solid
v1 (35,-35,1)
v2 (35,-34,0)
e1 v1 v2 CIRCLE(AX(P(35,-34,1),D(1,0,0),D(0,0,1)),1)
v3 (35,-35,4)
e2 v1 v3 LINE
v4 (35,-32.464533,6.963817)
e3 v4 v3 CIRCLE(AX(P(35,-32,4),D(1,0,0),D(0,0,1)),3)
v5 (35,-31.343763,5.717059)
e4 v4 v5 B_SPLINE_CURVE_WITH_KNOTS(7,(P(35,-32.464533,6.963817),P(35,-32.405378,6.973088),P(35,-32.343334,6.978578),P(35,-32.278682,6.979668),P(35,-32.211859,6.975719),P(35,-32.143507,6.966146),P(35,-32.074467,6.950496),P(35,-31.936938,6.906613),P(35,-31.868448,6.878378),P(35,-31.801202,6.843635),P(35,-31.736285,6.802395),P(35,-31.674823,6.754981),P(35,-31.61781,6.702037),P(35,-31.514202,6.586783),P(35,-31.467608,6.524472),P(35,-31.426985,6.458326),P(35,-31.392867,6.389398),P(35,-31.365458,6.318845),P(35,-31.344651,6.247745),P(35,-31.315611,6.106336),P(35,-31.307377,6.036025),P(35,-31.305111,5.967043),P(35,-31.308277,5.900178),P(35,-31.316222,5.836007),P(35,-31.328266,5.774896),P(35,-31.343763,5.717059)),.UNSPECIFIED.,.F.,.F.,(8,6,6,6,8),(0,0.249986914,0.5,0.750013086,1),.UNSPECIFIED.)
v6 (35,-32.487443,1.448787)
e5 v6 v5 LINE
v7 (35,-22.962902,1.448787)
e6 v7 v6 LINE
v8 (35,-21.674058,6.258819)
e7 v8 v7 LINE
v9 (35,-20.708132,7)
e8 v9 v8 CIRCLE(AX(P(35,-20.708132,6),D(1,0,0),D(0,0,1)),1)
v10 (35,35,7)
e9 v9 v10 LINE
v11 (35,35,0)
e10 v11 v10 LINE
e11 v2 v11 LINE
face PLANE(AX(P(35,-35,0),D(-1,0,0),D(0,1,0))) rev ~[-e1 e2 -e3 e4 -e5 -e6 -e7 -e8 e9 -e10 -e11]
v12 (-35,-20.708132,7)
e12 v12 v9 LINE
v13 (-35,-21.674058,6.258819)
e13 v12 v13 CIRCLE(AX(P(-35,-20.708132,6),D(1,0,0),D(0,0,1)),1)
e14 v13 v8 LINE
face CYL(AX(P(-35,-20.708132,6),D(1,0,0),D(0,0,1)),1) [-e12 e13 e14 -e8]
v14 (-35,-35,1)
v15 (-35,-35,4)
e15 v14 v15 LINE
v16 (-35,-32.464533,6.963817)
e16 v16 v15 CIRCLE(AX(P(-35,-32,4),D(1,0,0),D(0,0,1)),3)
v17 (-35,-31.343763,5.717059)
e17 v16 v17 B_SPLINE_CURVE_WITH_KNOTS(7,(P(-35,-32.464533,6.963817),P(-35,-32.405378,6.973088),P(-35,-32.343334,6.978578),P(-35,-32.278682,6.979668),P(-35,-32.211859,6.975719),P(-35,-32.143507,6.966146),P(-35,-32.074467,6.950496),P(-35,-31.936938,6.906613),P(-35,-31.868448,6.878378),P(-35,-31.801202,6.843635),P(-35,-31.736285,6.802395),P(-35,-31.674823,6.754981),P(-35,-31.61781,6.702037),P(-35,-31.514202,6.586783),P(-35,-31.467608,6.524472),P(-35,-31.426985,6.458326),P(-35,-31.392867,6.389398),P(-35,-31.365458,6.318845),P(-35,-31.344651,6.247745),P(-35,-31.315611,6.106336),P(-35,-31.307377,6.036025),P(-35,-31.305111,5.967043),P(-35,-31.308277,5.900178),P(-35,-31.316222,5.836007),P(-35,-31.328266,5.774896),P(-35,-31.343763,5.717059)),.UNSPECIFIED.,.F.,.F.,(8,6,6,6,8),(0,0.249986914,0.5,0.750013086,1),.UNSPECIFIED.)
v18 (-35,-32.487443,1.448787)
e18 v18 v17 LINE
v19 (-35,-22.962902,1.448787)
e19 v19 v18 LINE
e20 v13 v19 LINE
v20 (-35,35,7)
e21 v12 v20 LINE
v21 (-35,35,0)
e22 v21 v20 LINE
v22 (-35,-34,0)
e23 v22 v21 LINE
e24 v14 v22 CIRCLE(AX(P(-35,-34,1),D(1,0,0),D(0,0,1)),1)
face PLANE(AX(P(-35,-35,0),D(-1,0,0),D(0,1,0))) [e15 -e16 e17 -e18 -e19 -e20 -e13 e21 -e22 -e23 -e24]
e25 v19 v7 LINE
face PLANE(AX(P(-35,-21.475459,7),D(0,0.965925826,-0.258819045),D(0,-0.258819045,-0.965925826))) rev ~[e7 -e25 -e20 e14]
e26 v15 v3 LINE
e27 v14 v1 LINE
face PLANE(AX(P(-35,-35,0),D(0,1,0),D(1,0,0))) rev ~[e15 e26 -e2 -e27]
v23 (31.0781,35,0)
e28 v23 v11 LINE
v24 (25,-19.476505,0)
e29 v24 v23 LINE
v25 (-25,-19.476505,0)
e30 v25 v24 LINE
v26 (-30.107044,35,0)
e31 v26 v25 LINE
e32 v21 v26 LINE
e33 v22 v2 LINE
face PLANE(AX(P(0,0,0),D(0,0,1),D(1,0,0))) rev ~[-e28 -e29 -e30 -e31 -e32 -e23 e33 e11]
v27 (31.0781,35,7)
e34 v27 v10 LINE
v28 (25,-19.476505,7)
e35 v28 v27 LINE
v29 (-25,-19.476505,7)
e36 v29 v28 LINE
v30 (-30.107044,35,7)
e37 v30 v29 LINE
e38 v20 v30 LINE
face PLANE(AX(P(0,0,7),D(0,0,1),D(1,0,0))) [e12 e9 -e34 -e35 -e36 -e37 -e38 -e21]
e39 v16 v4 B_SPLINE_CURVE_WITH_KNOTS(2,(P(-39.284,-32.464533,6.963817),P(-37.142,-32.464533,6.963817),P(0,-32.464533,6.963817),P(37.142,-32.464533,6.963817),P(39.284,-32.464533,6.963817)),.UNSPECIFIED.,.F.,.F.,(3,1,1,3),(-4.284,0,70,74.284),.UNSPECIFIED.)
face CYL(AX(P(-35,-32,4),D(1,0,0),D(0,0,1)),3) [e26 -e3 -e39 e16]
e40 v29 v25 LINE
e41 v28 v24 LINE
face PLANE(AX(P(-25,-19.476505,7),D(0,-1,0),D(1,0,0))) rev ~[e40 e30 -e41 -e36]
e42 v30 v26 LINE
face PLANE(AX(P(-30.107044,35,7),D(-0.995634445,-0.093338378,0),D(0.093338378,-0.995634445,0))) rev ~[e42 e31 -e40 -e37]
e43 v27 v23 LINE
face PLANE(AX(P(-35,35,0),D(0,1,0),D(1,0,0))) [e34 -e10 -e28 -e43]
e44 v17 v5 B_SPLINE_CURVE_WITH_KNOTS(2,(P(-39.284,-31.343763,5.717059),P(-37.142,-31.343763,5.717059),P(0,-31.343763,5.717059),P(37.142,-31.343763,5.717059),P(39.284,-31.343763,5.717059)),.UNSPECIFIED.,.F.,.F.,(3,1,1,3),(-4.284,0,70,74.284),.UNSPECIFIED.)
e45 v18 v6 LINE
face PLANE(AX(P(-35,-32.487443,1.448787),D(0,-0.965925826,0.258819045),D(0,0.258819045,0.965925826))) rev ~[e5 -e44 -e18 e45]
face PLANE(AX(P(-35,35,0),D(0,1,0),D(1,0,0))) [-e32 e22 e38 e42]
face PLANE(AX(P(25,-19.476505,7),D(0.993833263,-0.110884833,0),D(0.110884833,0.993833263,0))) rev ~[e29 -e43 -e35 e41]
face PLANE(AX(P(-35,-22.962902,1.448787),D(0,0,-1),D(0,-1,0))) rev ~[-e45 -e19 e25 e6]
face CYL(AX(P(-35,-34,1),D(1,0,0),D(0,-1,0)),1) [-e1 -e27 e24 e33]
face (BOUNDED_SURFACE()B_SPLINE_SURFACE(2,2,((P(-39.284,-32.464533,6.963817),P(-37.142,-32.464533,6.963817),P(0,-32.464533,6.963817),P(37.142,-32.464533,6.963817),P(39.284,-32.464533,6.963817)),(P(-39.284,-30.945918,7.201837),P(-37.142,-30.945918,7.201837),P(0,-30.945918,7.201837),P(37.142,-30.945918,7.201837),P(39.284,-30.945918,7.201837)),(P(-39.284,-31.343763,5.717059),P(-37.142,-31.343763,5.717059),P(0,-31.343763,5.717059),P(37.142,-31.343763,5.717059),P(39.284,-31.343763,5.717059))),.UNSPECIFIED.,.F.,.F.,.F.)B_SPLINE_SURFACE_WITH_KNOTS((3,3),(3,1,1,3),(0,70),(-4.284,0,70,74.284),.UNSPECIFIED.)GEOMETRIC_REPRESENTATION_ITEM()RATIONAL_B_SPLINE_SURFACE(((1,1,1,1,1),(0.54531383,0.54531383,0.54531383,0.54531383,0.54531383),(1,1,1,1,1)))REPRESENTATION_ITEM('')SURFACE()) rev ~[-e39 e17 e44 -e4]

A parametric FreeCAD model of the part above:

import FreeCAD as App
import Part
import Sketcher
Q = App.Units.Quantity


def edges_at(feature, points):
    """Names of the edges that pass closest to the given points."""
    edges = feature.Shape.Edges
    near = lambda p: min(range(len(edges)), key=lambda i: edges[i].distToShape(Part.Vertex(*p))[0])
    return sorted({f"Edge{near(p) + 1}" for p in points})

doc = App.newDocument("Part")
body = doc.addObject("PartDesign::Body", "Body")

sketch1 = body.newObject("Sketcher::SketchObject", "Sketch")
sketch1.AttachmentSupport = (doc.getObject("XY_Plane"), [""])
sketch1.MapMode = "FlatFace"
sketch1.addGeometry(Part.LineSegment(App.Vector(-35, 35, 0), App.Vector(-35, -35, 0)), False)
sketch1.addGeometry(Part.LineSegment(App.Vector(-35, -35, 0), App.Vector(35, -35, 0)), False)
sketch1.addGeometry(Part.LineSegment(App.Vector(35, -35, 0), App.Vector(35, 35, 0)), False)
sketch1.addGeometry(Part.LineSegment(App.Vector(35, 35, 0), App.Vector(-35, 35, 0)), False)
sketch1.addConstraint(Sketcher.Constraint("Coincident", 0, 2, 1, 1))
sketch1.addConstraint(Sketcher.Constraint("Coincident", 1, 2, 2, 1))
sketch1.addConstraint(Sketcher.Constraint("Coincident", 2, 2, 3, 1))
sketch1.addConstraint(Sketcher.Constraint("Coincident", 3, 2, 0, 1))
sketch1.addConstraint(Sketcher.Constraint("Vertical", 0))
sketch1.addConstraint(Sketcher.Constraint("Horizontal", 1))
sketch1.addConstraint(Sketcher.Constraint("Vertical", 2))
sketch1.addConstraint(Sketcher.Constraint("Horizontal", 3))
sketch1.addConstraint(Sketcher.Constraint("Symmetric", 0, 2, 2, 2, -1, 1))
sketch1.addConstraint(Sketcher.Constraint("Equal", 3, 0))
sketch1.addConstraint(Sketcher.Constraint("DistanceX", 1, 1, 1, 2, Q("70 mm")))
pad1 = body.newObject("PartDesign::Pad", "Pad")
pad1.Profile = sketch1
pad1.Length = 7

sketch2 = body.newObject("Sketcher::SketchObject", "Sketch001")
sketch2.AttachmentSupport = (doc.getObject("YZ_Plane"), [""])
sketch2.MapMode = "FlatFace"
sketch2.AttachmentOffset = App.Placement(App.Vector(0, 0, -35), App.Rotation())
sketch2.addGeometry(Part.LineSegment(App.Vector(-31, 7, 0), App.Vector(-21.475459, 7, 0)), False)
sketch2.addGeometry(Part.LineSegment(App.Vector(-21.475459, 7, 0), App.Vector(-22.962902, 1.448787, 0)), False)
sketch2.addGeometry(Part.LineSegment(App.Vector(-22.962902, 1.448787, 0), App.Vector(-32.487443, 1.448787, 0)), False)
sketch2.addGeometry(Part.LineSegment(App.Vector(-32.487443, 1.448787, 0), App.Vector(-31, 7, 0)), False)
sketch2.addConstraint(Sketcher.Constraint("Coincident", 0, 2, 1, 1))
sketch2.addConstraint(Sketcher.Constraint("Coincident", 1, 2, 2, 1))
sketch2.addConstraint(Sketcher.Constraint("Coincident", 2, 2, 3, 1))
sketch2.addConstraint(Sketcher.Constraint("Coincident", 3, 2, 0, 1))
sketch2.addConstraint(Sketcher.Constraint("Horizontal", 0))
sketch2.addConstraint(Sketcher.Constraint("Horizontal", 2))
sketch2.addConstraint(Sketcher.Constraint("Parallel", 1, 3))
sketch2.addConstraint(Sketcher.Constraint("Angle", 1, Q("-105 deg")))
sketch2.addConstraint(Sketcher.Constraint("DistanceY", -1, 1, 0, 2, Q("7 mm")))
sketch2.addConstraint(Sketcher.Constraint("DistanceX", 3, 2, -1, 1, Q("31 mm")))
sketch2.addConstraint(Sketcher.Constraint("DistanceX", 0, 1, 0, 2, Q("9.524541 mm")))
sketch2.addConstraint(Sketcher.Constraint("Distance", 1, Q("5.747039 mm")))
pocket1 = body.newObject("PartDesign::Pocket", "Pocket")
pocket1.Profile = sketch2
pocket1.Type = "ThroughAll"
pocket1.Reversed = True
doc.recompute()

fillet = body.newObject("PartDesign::Fillet", "Fillet")
fillet.Base = (pocket1, edges_at(pocket1, [(0, -35, 7)]))
fillet.Radius = 3
doc.recompute()

fillet2 = body.newObject("PartDesign::Fillet", "Fillet001")
fillet2.Base = (fillet, edges_at(fillet, [(0, -35, 0)]))
fillet2.Radius = 1
doc.recompute()

fillet3 = body.newObject("PartDesign::Fillet", "Fillet002")
fillet3.Base = (fillet2, edges_at(fillet2, [(0, -21.475, 7), (0, -31, 7)]))
fillet3.Radius = 1

sketch3 = body.newObject("Sketcher::SketchObject", "Sketch002")
sketch3.AttachmentSupport = (doc.getObject("XY_Plane"), [""])
sketch3.MapMode = "FlatFace"
sketch3.AttachmentOffset = App.Placement(App.Vector(0, 0, 7), App.Rotation())
sketch3.addGeometry(Part.LineSegment(App.Vector(-25, -19.476505, 0), App.Vector(25, -19.476505, 0)), False)
sketch3.addGeometry(Part.LineSegment(App.Vector(25, -19.476505, 0), App.Vector(31.0781, 35, 0)), False)
sketch3.addGeometry(Part.LineSegment(App.Vector(31.0781, 35, 0), App.Vector(-30.107044, 35, 0)), False)
sketch3.addGeometry(Part.LineSegment(App.Vector(-30.107044, 35, 0), App.Vector(-25, -19.476505, 0)), False)
sketch3.addConstraint(Sketcher.Constraint("Coincident", 0, 2, 1, 1))
sketch3.addConstraint(Sketcher.Constraint("Coincident", 1, 2, 2, 1))
sketch3.addConstraint(Sketcher.Constraint("Coincident", 2, 2, 3, 1))
sketch3.addConstraint(Sketcher.Constraint("Coincident", 3, 2, 0, 1))
sketch3.addConstraint(Sketcher.Constraint("Horizontal", 0))
sketch3.addConstraint(Sketcher.Constraint("Horizontal", 2))
sketch3.addConstraint(Sketcher.Constraint("DistanceX", 0, 1, 0, 2, Q("50 mm")))
sketch3.addConstraint(Sketcher.Constraint("DistanceX", -1, 1, 0, 2, Q("25 mm")))
sketch3.addConstraint(Sketcher.Constraint("DistanceY", -1, 1, 1, 2, Q("35 mm")))
sketch3.addConstraint(Sketcher.Constraint("DistanceX", -1, 1, 1, 2, Q("31.0781 mm")))
sketch3.addConstraint(Sketcher.Constraint("Distance", 1, Q("54.814532 mm")))
sketch3.addConstraint(Sketcher.Constraint("DistanceX", 2, 2, 2, 1, Q("61.185144 mm")))
pocket2 = body.newObject("PartDesign::Pocket", "Pocket001")
pocket2.Profile = sketch3
pocket2.Type = "ThroughAll"

doc.recompute()
